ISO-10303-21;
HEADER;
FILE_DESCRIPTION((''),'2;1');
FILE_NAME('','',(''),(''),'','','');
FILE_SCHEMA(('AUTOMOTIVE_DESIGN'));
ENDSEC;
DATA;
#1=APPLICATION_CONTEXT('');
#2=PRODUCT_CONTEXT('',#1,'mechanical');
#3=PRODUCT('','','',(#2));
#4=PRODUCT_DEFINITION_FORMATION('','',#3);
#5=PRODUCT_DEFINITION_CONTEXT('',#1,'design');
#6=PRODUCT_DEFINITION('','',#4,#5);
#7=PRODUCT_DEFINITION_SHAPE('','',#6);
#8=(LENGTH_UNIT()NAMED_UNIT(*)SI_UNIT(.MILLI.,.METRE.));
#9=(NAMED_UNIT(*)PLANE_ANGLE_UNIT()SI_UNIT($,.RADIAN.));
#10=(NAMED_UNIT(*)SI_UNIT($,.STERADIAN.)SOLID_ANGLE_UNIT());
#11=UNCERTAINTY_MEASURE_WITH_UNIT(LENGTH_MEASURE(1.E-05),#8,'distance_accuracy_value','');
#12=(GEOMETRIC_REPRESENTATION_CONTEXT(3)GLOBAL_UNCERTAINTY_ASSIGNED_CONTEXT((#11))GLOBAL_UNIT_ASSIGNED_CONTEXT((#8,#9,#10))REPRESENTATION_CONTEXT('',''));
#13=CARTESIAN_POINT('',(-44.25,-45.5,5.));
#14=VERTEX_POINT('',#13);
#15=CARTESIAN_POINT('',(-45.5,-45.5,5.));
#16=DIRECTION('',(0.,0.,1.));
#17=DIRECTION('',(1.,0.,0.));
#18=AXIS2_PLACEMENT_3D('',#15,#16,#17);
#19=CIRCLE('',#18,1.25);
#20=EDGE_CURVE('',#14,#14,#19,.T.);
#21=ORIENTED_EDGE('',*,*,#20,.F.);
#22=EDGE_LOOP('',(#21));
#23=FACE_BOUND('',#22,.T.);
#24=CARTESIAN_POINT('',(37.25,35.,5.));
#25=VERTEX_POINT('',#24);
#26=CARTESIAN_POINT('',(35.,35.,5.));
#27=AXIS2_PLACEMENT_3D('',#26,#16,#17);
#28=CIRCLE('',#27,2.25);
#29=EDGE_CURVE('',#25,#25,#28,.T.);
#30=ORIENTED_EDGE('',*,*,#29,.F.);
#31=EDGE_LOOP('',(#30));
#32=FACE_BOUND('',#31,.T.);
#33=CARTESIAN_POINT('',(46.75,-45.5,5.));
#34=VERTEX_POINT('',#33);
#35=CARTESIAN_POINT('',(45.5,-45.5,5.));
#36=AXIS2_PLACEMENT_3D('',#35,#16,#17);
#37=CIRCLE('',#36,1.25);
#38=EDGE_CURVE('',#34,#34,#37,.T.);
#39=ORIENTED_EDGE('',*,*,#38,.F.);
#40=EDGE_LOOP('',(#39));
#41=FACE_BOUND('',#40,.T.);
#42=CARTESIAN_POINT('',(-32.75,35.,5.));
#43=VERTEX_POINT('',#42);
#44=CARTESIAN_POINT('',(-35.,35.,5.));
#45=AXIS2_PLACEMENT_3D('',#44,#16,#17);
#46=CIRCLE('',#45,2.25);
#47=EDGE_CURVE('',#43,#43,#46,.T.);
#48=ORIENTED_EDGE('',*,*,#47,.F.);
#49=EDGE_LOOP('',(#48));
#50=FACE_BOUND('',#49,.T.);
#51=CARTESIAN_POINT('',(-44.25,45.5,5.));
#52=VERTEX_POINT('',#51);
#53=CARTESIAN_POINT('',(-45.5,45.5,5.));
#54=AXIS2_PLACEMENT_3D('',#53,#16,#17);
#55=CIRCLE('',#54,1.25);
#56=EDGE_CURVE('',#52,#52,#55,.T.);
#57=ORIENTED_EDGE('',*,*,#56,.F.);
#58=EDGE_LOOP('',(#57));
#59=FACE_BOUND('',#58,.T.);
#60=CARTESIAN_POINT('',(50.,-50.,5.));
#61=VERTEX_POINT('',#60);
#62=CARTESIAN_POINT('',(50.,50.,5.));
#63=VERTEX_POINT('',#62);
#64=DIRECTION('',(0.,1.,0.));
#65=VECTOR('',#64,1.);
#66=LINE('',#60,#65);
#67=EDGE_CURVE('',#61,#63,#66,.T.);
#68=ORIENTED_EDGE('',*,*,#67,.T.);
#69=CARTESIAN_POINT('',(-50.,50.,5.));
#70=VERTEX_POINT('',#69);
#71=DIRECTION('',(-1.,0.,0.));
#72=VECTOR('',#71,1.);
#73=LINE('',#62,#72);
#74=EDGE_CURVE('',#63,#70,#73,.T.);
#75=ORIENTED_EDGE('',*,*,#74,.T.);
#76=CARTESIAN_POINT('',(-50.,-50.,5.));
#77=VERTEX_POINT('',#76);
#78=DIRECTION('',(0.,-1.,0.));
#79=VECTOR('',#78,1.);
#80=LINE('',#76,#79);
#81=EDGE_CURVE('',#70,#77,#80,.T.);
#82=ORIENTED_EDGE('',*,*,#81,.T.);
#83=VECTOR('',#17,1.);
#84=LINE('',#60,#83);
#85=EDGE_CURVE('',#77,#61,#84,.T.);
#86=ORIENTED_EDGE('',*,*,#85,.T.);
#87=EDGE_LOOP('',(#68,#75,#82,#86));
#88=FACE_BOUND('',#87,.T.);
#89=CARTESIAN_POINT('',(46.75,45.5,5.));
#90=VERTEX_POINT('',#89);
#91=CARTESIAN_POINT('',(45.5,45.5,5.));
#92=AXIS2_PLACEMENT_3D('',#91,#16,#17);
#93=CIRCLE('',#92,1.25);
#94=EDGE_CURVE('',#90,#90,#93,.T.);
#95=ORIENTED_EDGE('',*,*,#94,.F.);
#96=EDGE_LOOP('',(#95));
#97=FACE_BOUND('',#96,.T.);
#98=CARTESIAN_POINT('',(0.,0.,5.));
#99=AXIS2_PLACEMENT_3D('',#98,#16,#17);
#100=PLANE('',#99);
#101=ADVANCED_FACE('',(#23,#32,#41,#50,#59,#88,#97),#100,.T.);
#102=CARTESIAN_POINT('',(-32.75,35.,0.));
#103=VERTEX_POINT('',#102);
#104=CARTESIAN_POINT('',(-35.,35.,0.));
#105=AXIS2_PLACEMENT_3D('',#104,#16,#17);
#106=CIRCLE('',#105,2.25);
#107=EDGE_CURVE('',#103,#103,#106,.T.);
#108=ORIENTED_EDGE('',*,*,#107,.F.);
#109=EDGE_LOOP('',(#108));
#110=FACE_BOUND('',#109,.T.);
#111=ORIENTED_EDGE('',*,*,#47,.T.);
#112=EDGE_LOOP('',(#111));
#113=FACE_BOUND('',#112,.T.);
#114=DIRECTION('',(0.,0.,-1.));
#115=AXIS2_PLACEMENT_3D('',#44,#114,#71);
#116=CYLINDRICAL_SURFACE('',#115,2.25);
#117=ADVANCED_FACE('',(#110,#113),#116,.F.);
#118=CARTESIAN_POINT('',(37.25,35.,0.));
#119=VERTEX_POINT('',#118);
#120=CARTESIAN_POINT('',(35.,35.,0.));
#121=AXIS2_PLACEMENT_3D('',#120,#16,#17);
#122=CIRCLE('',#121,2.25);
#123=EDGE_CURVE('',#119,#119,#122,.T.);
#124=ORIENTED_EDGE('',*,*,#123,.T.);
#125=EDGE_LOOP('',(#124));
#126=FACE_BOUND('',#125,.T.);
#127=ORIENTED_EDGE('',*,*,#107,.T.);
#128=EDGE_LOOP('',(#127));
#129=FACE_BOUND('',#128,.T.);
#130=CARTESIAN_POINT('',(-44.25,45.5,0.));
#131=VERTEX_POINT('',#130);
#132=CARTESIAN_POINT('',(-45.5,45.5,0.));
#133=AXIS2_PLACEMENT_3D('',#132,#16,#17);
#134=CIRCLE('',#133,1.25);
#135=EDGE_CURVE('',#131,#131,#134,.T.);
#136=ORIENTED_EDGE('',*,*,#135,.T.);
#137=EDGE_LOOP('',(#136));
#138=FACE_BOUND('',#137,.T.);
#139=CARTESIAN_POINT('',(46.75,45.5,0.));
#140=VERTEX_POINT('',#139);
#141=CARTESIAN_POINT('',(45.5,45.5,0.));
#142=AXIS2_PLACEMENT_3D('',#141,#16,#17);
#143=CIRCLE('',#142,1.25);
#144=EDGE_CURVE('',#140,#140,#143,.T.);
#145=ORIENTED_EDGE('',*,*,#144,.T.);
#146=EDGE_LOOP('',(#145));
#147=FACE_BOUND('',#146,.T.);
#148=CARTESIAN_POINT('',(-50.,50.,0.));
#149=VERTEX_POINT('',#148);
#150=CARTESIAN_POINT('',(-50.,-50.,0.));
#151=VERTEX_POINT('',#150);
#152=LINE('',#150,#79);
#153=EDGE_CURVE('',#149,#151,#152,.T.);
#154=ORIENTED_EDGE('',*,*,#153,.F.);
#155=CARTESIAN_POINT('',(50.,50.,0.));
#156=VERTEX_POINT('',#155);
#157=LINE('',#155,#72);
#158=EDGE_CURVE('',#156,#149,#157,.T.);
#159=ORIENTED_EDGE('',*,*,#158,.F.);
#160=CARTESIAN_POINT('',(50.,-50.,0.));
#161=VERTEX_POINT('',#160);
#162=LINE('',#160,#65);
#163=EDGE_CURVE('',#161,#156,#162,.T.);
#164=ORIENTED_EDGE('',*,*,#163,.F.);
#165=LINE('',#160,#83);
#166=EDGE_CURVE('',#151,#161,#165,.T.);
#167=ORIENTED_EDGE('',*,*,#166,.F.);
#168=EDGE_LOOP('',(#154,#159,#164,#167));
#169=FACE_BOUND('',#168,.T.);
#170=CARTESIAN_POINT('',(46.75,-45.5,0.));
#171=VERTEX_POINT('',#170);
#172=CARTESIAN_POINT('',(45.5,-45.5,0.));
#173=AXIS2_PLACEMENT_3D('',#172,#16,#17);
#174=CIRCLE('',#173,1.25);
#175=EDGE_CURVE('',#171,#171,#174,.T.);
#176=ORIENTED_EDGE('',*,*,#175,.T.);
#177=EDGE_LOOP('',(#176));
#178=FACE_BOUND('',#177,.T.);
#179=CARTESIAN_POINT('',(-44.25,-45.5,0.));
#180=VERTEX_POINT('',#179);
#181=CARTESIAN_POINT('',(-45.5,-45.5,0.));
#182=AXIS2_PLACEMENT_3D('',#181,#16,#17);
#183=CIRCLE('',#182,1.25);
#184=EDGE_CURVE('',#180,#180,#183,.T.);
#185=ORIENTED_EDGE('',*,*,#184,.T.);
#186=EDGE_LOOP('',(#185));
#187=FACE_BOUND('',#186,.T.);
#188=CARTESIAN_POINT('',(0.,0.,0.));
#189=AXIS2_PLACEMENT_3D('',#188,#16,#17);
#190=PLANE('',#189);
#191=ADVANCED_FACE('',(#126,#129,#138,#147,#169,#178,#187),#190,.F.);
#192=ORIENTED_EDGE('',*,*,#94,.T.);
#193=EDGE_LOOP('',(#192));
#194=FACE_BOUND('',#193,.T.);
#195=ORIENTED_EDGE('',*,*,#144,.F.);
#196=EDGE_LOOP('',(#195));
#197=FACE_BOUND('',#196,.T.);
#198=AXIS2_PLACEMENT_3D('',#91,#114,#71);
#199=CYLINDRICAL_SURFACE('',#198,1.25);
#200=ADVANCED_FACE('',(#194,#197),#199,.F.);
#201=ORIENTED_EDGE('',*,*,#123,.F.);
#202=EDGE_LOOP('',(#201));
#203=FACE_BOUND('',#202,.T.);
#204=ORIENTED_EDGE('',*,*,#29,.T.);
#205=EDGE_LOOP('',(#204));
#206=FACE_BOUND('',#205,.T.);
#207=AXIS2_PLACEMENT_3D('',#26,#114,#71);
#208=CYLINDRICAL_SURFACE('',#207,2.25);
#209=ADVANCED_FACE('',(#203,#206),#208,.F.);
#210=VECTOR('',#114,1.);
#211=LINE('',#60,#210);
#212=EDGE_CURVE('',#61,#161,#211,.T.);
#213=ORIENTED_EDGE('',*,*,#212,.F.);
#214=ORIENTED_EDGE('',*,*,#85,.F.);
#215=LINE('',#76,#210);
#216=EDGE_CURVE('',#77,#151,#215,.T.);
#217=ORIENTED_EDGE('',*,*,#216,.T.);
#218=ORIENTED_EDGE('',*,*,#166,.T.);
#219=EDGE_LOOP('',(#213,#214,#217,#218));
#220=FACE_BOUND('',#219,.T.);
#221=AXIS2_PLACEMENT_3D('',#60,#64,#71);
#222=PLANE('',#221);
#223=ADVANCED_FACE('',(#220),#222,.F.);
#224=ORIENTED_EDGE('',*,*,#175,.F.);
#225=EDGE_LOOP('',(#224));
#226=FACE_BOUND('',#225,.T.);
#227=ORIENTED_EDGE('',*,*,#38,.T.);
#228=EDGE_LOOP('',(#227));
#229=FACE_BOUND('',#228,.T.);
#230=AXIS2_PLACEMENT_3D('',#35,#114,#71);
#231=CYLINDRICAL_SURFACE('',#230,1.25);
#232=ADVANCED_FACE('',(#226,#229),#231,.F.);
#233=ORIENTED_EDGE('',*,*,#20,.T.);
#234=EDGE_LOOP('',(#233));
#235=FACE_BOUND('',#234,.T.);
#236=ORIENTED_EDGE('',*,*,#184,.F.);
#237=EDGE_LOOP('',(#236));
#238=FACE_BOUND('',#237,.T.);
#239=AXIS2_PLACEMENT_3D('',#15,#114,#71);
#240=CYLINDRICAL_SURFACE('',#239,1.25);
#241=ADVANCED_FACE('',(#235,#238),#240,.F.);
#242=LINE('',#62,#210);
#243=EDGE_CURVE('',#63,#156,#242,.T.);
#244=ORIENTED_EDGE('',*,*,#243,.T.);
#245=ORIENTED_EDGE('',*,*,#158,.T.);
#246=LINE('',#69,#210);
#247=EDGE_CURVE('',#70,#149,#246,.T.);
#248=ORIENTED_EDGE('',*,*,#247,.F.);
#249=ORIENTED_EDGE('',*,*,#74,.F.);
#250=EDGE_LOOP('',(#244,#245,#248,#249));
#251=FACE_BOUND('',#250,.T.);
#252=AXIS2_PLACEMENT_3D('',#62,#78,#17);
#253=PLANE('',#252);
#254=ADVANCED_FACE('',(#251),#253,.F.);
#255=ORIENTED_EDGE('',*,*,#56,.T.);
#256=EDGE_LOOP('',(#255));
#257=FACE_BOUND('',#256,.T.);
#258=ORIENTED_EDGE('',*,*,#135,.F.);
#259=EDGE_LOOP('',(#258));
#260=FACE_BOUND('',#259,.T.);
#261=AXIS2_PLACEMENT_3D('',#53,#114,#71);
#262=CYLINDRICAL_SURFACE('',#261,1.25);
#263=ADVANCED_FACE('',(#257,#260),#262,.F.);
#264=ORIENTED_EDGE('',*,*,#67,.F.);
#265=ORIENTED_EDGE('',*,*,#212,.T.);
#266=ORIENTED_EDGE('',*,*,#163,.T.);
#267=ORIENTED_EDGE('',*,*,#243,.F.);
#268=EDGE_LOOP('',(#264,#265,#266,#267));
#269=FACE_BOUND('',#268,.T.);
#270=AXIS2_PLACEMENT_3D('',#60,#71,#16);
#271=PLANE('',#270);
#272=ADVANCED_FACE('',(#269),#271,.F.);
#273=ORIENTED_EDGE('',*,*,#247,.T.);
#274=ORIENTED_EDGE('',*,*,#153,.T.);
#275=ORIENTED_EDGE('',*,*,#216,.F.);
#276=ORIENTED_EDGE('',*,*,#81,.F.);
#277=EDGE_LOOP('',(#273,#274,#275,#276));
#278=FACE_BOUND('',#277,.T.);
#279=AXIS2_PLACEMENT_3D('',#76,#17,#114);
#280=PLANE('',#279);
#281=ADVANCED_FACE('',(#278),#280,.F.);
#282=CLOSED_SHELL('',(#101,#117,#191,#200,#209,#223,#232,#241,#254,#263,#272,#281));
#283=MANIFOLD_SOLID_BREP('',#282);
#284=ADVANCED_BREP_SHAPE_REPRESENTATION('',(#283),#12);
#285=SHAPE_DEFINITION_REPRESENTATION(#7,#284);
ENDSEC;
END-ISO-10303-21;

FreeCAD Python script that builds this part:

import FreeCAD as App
import Part
import Sketcher
from FreeCAD import Vector
Q = App.Units.Quantity

doc = App.newDocument("Part")
body = doc.addObject("PartDesign::Body", "Body")

sketch1 = body.newObject("Sketcher::SketchObject", "Sketch")
sketch1.AttachmentSupport = (doc.getObject("XY_Plane"), [""])
sketch1.MapMode = "FlatFace"
sketch1.addGeometry([
    Part.LineSegment(Vector(-50, 50, 0), Vector(-50, -50, 0)),
    Part.LineSegment(Vector(-50, -50, 0), Vector(50, -50, 0)),
    Part.LineSegment(Vector(50, -50, 0), Vector(50, 50, 0)),
    Part.LineSegment(Vector(50, 50, 0), Vector(-50, 50, 0)),
    Part.Circle(Vector(-45.5, -45.5, 0), Vector(0, 0, 1), 1.2),
    Part.Circle(Vector(45.5, -45.5, 0), Vector(0, 0, 1), 1.2),
    Part.Circle(Vector(-35, 35, 0), Vector(0, 0, 1), 2.2),
    Part.Circle(Vector(-45.5, 45.5, 0), Vector(0, 0, 1), 1.2),
    Part.Circle(Vector(35, 35, 0), Vector(0, 0, 1), 2.2),
    Part.Circle(Vector(45.5, 45.5, 0), Vector(0, 0, 1), 1.2),
], False)
sketch1.addConstraint([
    Sketcher.Constraint("Coincident", 0, 2, 1, 1),
    Sketcher.Constraint("Coincident", 1, 2, 2, 1),
    Sketcher.Constraint("Coincident", 2, 2, 3, 1),
    Sketcher.Constraint("Coincident", 3, 2, 0, 1),
    Sketcher.Constraint("Vertical", 0),
    Sketcher.Constraint("Horizontal", 1),
    Sketcher.Constraint("Vertical", 2),
    Sketcher.Constraint("Horizontal", 3),
    Sketcher.Constraint("Equal", 4, 5),
    Sketcher.Constraint("Equal", 5, 7),
    Sketcher.Constraint("Equal", 6, 8),
    Sketcher.Constraint("Equal", 7, 9),
    Sketcher.Constraint("Symmetric", 5, 3, 7, 3, -1, 1),
    Sketcher.Constraint("Symmetric", 4, 3, 9, 3, -1, 1),
    Sketcher.Constraint("Symmetric", 0, 2, 2, 2, -1, 1),
    Sketcher.Constraint("Symmetric", 4, 3, 5, 3, -2),
    Sketcher.Constraint("Symmetric", 6, 3, 8, 3, -2),
    Sketcher.Constraint("Equal", 3, 0),
    Sketcher.Constraint("Diameter", 4, Q("2.5 mm")),
    Sketcher.Constraint("Diameter", 6, Q("4.5 mm")),
    Sketcher.Constraint("DistanceX", 1, 1, 1, 2, Q("100 mm")),
    Sketcher.Constraint("DistanceX", 6, 3, -1, 1, Q("35 mm")),
    Sketcher.Constraint("DistanceY", -1, 1, 6, 3, Q("35 mm")),
    Sketcher.Constraint("DistanceX", 4, 3, 5, 3, Q("91 mm")),
    Sketcher.Constraint("DistanceY", 4, 3, 7, 3, Q("91 mm")),
])
pad1 = body.newObject("PartDesign::Pad", "Pad")
pad1.Profile = sketch1
pad1.Length = 5

doc.recompute()
